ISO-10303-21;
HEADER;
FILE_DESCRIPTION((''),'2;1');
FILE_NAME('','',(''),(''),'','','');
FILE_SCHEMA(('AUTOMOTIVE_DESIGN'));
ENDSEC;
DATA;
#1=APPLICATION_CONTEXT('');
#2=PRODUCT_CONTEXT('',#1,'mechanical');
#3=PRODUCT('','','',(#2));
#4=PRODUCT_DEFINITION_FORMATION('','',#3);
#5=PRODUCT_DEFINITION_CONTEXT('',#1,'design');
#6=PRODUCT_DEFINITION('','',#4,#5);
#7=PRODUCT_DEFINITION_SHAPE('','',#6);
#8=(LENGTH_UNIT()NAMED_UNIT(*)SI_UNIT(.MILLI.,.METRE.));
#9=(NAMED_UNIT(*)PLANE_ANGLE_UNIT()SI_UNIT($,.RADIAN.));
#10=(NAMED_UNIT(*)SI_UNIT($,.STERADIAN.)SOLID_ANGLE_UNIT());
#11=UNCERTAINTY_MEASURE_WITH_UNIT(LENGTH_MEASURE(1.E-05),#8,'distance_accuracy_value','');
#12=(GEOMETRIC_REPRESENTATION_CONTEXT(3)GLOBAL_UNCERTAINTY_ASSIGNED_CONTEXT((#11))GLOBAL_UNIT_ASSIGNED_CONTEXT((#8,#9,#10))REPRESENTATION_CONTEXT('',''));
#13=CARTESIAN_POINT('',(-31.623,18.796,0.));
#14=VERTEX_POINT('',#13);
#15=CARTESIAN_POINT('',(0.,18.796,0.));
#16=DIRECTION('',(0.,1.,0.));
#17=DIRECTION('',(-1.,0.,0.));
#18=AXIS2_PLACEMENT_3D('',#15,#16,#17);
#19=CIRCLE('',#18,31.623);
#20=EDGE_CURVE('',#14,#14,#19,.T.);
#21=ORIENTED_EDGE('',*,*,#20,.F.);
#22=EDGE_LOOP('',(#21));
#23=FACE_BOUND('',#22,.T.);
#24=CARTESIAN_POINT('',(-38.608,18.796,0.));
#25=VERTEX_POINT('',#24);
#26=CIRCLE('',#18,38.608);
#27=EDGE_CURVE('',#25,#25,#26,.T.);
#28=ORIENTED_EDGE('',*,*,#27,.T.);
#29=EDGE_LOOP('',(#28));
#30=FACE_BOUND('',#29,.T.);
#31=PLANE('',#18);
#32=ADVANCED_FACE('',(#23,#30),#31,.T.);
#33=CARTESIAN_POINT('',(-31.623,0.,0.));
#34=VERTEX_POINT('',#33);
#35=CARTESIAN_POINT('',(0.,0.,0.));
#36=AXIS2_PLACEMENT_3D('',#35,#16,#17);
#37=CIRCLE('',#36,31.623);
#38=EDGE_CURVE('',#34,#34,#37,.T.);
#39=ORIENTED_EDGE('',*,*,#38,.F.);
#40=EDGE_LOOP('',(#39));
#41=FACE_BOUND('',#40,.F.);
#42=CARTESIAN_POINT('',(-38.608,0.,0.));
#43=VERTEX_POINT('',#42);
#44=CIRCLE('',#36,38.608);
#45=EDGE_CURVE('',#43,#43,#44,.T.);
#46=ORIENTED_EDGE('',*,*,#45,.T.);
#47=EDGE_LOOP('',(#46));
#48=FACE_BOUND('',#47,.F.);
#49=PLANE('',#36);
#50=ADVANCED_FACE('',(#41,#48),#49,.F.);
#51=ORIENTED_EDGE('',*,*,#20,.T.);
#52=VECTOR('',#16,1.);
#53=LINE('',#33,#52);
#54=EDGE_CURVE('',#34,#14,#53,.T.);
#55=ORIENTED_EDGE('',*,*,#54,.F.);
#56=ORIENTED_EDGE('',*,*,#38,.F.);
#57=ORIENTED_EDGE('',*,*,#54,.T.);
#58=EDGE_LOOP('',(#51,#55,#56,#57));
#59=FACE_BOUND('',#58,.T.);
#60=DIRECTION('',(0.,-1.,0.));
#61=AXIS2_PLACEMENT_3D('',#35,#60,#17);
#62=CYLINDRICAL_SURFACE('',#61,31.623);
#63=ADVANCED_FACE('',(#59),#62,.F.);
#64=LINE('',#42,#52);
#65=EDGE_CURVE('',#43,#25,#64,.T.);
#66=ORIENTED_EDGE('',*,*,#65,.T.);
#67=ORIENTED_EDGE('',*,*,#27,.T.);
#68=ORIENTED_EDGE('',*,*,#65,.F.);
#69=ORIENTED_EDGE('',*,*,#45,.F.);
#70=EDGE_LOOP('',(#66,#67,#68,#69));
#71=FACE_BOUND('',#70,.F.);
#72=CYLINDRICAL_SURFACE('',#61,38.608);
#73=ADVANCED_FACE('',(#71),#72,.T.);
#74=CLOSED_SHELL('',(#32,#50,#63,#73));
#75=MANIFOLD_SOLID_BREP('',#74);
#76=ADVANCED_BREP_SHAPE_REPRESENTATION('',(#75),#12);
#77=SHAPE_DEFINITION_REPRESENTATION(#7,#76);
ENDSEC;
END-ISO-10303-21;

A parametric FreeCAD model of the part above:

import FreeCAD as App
import Part
import Sketcher
Q = App.Units.Quantity

doc = App.newDocument("Part")
body = doc.addObject("PartDesign::Body", "Body")

sketch1 = doc.addObject("Sketcher::SketchObject", "Sketch")
body.addObject(sketch1)
sketch1.AttachmentSupport = (doc.XZ_Plane, [""])
sketch1.MapMode = "FlatFace"
sketch1.addGeometry([
    Part.Circle(App.Vector(0, 0, 0), App.Vector(0, 0, 1), 38.608),
    Part.Circle(App.Vector(0, 0, 0), App.Vector(0, 0, 1), 31.623),
], False)
sketch1.addConstraint([
    Sketcher.Constraint("Coincident", 0, 3, -1, 1),
    Sketcher.Constraint("Coincident", 1, 3, -1, 1),
    Sketcher.Constraint("Diameter", 0, Q("3.04 in")),
    Sketcher.Constraint("Diameter", 1, Q("2.49 in")),
])
pad1 = doc.addObject("PartDesign::Pad", "Pad")
body.addObject(pad1)
pad1.Profile = sketch1
pad1.Length = Q("0.74 in")
pad1.Reversed = True

doc.recompute()
